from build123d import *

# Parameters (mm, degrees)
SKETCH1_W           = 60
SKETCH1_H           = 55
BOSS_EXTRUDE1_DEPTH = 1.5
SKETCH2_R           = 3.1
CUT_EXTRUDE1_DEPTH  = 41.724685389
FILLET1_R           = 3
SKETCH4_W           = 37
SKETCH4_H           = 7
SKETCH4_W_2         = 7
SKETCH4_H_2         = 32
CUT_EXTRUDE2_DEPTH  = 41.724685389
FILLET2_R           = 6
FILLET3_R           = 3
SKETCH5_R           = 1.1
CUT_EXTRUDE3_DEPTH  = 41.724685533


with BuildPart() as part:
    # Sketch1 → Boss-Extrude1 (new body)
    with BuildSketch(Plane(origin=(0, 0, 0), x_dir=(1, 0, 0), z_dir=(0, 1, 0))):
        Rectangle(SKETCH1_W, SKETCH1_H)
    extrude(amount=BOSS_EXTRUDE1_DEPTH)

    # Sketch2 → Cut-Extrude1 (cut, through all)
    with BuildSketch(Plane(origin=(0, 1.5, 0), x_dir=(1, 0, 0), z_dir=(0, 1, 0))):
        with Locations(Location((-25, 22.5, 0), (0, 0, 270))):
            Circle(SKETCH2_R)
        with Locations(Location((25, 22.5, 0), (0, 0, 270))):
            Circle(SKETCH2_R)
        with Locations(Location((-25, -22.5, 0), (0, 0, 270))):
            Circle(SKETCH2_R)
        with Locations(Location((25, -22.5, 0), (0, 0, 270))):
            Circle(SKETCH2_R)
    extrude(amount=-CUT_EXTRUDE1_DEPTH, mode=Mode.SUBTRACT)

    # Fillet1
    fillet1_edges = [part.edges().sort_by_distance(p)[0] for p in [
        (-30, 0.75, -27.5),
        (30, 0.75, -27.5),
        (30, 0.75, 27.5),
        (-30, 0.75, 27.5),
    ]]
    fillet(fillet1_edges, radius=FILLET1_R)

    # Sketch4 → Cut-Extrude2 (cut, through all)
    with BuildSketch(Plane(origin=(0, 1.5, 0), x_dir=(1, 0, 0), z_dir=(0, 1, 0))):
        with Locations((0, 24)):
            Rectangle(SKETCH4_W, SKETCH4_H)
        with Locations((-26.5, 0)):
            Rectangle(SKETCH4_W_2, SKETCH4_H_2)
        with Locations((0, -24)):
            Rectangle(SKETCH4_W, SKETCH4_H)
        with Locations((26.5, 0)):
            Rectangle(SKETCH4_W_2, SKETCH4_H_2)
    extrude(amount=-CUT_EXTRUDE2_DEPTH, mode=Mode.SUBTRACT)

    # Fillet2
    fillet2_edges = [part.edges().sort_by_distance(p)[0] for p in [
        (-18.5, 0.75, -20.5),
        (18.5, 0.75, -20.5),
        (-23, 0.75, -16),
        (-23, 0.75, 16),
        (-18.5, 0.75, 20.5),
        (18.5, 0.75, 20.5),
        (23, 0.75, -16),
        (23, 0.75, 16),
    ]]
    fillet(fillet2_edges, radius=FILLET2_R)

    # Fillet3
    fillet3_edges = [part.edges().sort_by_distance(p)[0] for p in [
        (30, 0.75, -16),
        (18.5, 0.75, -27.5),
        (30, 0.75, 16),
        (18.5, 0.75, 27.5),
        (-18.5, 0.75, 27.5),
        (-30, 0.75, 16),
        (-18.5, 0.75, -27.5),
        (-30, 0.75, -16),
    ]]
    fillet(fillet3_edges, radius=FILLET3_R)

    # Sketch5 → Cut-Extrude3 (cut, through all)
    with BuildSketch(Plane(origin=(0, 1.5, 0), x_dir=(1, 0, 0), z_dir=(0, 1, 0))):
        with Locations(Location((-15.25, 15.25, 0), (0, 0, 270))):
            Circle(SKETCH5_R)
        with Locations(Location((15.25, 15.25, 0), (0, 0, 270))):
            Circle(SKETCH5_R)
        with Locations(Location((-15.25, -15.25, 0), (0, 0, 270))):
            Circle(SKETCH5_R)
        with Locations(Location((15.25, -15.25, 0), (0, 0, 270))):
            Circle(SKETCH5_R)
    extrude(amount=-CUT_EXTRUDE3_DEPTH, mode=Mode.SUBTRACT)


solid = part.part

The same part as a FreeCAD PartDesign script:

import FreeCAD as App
import Part
import Sketcher


def edges_at(feature, points):
    """Names of the edges that pass closest to the given points."""
    edges = feature.Shape.Edges
    near = lambda p: min(range(len(edges)), key=lambda i: edges[i].distToShape(Part.Vertex(*p))[0])
    return sorted({f"Edge{near(p) + 1}" for p in points})


def add_polygon(sketch, points):
    """Adds a closed chain of lines whose ends are joined by coincident constraints."""
    first, n = sketch.GeometryCount, len(points)
    for a, b in zip(points, points[1:] + points[:1]):
        sketch.addGeometry(Part.LineSegment(App.Vector(*a, 0), App.Vector(*b, 0)), False)
    for i in range(n):
        sketch.addConstraint(Sketcher.Constraint("Coincident", first + i, 2, first + (i + 1) % n, 1))

doc = App.newDocument("Part")
body = doc.addObject("PartDesign::Body", "Body")

sketch1 = body.newObject("Sketcher::SketchObject", "Sketch")
sketch1.AttachmentSupport = (doc.getObject("XZ_Plane"), [""])
sketch1.MapMode = "FlatFace"
add_polygon(sketch1, [(-30, -28), (-30, 28), (30, 28), (30, -28)])
sketch1.addConstraint([
    Sketcher.Constraint("Vertical", 0),
    Sketcher.Constraint("Horizontal", 1),
    Sketcher.Constraint("Vertical", 2),
    Sketcher.Constraint("Horizontal", 3),
    Sketcher.Constraint("Symmetric", 0, 2, 2, 2, -1, 1),
    Sketcher.Constraint("DistanceX", 1, 1, 1, 2, 60.0),
    Sketcher.Constraint("DistanceY", 0, 1, 0, 2, 55.0),
])
pad1 = body.newObject("PartDesign::Pad", "Pad")
pad1.Profile = sketch1
pad1.Length = 1.5
pad1.Reversed = True

sketch2 = body.newObject("Sketcher::SketchObject", "Sketch001")
sketch2.AttachmentSupport = (doc.getObject("XZ_Plane"), [""])
sketch2.MapMode = "FlatFace"
sketch2.AttachmentOffset = App.Placement(App.Vector(0, 0, -1.5), App.Rotation())
sketch2.addGeometry([
    Part.Circle(App.Vector(-25, -22.5, 0), App.Vector(0, 0, 1), 3.1),
    Part.Circle(App.Vector(25, -22.5, 0), App.Vector(0, 0, 1), 3.1),
    Part.Circle(App.Vector(-25, 22.5, 0), App.Vector(0, 0, 1), 3.1),
    Part.Circle(App.Vector(25, 22.5, 0), App.Vector(0, 0, 1), 3.1),
], False)
sketch2.addConstraint([
    Sketcher.Constraint("Equal", 0, 1),
    Sketcher.Constraint("Equal", 1, 2),
    Sketcher.Constraint("Equal", 2, 3),
    Sketcher.Constraint("Symmetric", 1, 3, 2, 3, -1, 1),
    Sketcher.Constraint("Symmetric", 0, 3, 3, 3, -1, 1),
    Sketcher.Constraint("Symmetric", 0, 3, 1, 3, -2),
    Sketcher.Constraint("Diameter", 0, 6.2),
    Sketcher.Constraint("DistanceX", 0, 3, -1, 1, 25.0),
    Sketcher.Constraint("DistanceY", 0, 3, 2, 3, 45.0),
])
pocket1 = body.newObject("PartDesign::Pocket", "Pocket")
pocket1.Profile = sketch2
pocket1.Type = "ThroughAll"
pocket1.Reversed = True
doc.recompute()

fillet = body.newObject("PartDesign::Fillet", "Fillet")
fillet.Base = (pocket1, edges_at(pocket1, [
    (-30, 0.75, -27.5),
    (30, 0.75, -27.5),
    (30, 0.75, 27.5),
    (-30, 0.75, 27.5),
]))
fillet.Radius = 3

sketch3 = body.newObject("Sketcher::SketchObject", "Sketch002")
sketch3.AttachmentSupport = (doc.getObject("XZ_Plane"), [""])
sketch3.MapMode = "FlatFace"
sketch3.AttachmentOffset = App.Placement(App.Vector(0, 0, -1.5), App.Rotation())
add_polygon(sketch3, [(-18, -28), (-18, -20), (18, -20), (18, -28)])
add_polygon(sketch3, [(-30, -16), (-30, 16), (-23, 16), (-23, -16)])
add_polygon(sketch3, [(-18, 20), (-18, 28), (18, 28), (18, 20)])
add_polygon(sketch3, [(23, -16), (23, 16), (30, 16), (30, -16)])
sketch3.addConstraint([
    Sketcher.Constraint("Vertical", 0),
    Sketcher.Constraint("Horizontal", 1),
    Sketcher.Constraint("Vertical", 2),
    Sketcher.Constraint("Horizontal", 3),
    Sketcher.Constraint("Vertical", 4),
    Sketcher.Constraint("Horizontal", 5),
    Sketcher.Constraint("Vertical", 6),
    Sketcher.Constraint("Horizontal", 7),
    Sketcher.Constraint("Vertical", 8),
    Sketcher.Constraint("Horizontal", 9),
    Sketcher.Constraint("Vertical", 10),
    Sketcher.Constraint("Horizontal", 11),
    Sketcher.Constraint("Vertical", 12),
    Sketcher.Constraint("Horizontal", 13),
    Sketcher.Constraint("Vertical", 14),
    Sketcher.Constraint("Horizontal", 15),
    Sketcher.Constraint("Symmetric", 2, 2, 8, 2, -1, 1),
    Sketcher.Constraint("Symmetric", 0, 2, 10, 2, -1, 1),
    Sketcher.Constraint("Symmetric", 6, 2, 12, 2, -1, 1),
    Sketcher.Constraint("Symmetric", 4, 2, 14, 2, -1, 1),
    Sketcher.Constraint("Horizontal", 5, 2, 12, 2),
    Sketcher.Constraint("Vertical", 3, 2, 8, 2),
    Sketcher.Constraint("Equal", 15, 0),
    Sketcher.Constraint("DistanceX", 1, 1, 1, 2, 37.0),
    Sketcher.Constraint("DistanceX", 5, 1, 5, 2, 7.0),
    Sketcher.Constraint("DistanceY", 4, 1, 4, 2, 32.0),
    Sketcher.Constraint("DistanceX", 4, 2, -1, 1, 30.0),
    Sketcher.Constraint("DistanceY", 0, 2, 8, 2, 48.0),
])
pocket2 = body.newObject("PartDesign::Pocket", "Pocket001")
pocket2.Profile = sketch3
pocket2.Type = "ThroughAll"
pocket2.Reversed = True
doc.recompute()

fillet2 = body.newObject("PartDesign::Fillet", "Fillet001")
fillet2.Base = (pocket2, edges_at(pocket2, [
    (-18.5, 0.75, -20.5),
    (18.5, 0.75, -20.5),
    (-23, 0.75, -16),
    (-23, 0.75, 16),
    (-18.5, 0.75, 20.5),
    (18.5, 0.75, 20.5),
    (23, 0.75, -16),
    (23, 0.75, 16),
]))
fillet2.Radius = 6
doc.recompute()

fillet3 = body.newObject("PartDesign::Fillet", "Fillet002")
fillet3.Base = (fillet2, edges_at(fillet2, [
    (30, 0.75, -16),
    (18.5, 0.75, -27.5),
    (30, 0.75, 16),
    (18.5, 0.75, 27.5),
    (-18.5, 0.75, 27.5),
    (-30, 0.75, 16),
    (-18.5, 0.75, -27.5),
    (-30, 0.75, -16),
]))
fillet3.Radius = 3

sketch4 = body.newObject("Sketcher::SketchObject", "Sketch003")
sketch4.AttachmentSupport = (doc.getObject("XZ_Plane"), [""])
sketch4.MapMode = "FlatFace"
sketch4.AttachmentOffset = App.Placement(App.Vector(0, 0, -1.5), App.Rotation())
sketch4.addGeometry([
    Part.Circle(App.Vector(-15.2, -15.2, 0), App.Vector(0, 0, 1), 1.1),
    Part.Circle(App.Vector(15.2, -15.2, 0), App.Vector(0, 0, 1), 1.1),
    Part.Circle(App.Vector(-15.2, 15.2, 0), App.Vector(0, 0, 1), 1.1),
    Part.Circle(App.Vector(15.2, 15.2, 0), App.Vector(0, 0, 1), 1.1),
], False)
sketch4.addConstraint([
    Sketcher.Constraint("Equal", 0, 1),
    Sketcher.Constraint("Equal", 1, 2),
    Sketcher.Constraint("Equal", 2, 3),
    Sketcher.Constraint("Symmetric", 1, 3, 2, 3, -1, 1),
    Sketcher.Constraint("Symmetric", 0, 3, 3, 3, -1, 1),
    Sketcher.Constraint("Symmetric", 0, 3, 1, 3, -2),
    Sketcher.Constraint("Diameter", 0, 2.2),
    Sketcher.Constraint("DistanceX", 0, 3, 1, 3, 30.5),
    Sketcher.Constraint("DistanceY", 0, 3, 2, 3, 30.5),
])
pocket3 = body.newObject("PartDesign::Pocket", "Pocket002")
pocket3.Profile = sketch4
pocket3.Type = "ThroughAll"
pocket3.Reversed = True

doc.recompute()
